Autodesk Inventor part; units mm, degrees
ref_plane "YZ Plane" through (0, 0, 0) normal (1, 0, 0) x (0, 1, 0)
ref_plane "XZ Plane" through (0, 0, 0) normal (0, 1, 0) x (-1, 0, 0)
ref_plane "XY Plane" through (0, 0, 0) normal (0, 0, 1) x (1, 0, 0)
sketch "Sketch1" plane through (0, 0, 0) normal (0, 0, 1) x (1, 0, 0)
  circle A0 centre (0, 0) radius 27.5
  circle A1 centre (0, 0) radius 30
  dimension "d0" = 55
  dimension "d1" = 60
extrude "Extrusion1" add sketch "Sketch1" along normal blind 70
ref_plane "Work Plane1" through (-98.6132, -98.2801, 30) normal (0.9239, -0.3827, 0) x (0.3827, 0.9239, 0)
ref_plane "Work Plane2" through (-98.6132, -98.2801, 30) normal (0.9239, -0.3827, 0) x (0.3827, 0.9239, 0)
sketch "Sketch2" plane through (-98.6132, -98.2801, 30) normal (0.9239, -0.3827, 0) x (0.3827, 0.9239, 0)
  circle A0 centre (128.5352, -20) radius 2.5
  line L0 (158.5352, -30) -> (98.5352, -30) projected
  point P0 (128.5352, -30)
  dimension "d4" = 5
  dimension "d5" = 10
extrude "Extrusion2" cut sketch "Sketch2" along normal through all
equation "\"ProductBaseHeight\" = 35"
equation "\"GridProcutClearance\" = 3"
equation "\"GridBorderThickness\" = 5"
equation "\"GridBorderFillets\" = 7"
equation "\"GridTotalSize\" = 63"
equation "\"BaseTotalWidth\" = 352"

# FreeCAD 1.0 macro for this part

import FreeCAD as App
import Part
import Sketcher
from FreeCAD import Vector

doc = App.newDocument("Part")
body = doc.addObject("PartDesign::Body", "Body")

# Sketch on XY plane
sketch1 = body.newObject("Sketcher::SketchObject", "Sketch")
sketch1.AttachmentSupport = (doc.getObject("XY_Plane"), [""])
sketch1.MapMode = "FlatFace"
sketch1.addGeometry([
    Part.Circle(Vector(0, 0, 0), Vector(0, 0, 1), 30),
    Part.Circle(Vector(0, 0, 0), Vector(0, 0, 1), 28),
], False)
sketch1.addConstraint([
    Sketcher.Constraint("Coincident", 0, 3, -1, 1),
    Sketcher.Constraint("Coincident", 1, 3, -1, 1),
    Sketcher.Constraint("Diameter", 0, 60.0),
    Sketcher.Constraint("Diameter", 1, 55.0),
])
pad1 = body.newObject("PartDesign::Pad", "Pad")
pad1.Profile = sketch1
pad1.Length = 70

# Sketch on an angled plane
sketch2 = body.newObject("Sketcher::SketchObject", "Sketch001")
sketch2.Placement = App.Placement(Vector(-98.6132, -98.2801, 30), App.Rotation(Vector(0.382683432, 0.923879533, 0), Vector(0, 0, 1.000000001), Vector(0.923879533, -0.382683432, 0), "ZXY"))
sketch2.addGeometry(Part.Circle(Vector(128.5, -20, 0), Vector(0, 0, 1), 2.5), False)
sketch2.addConstraint([
    Sketcher.Constraint("Diameter", 0, 5.0),
    Sketcher.Constraint("DistanceY", 0, 3, -1, 1, 20.0),
    Sketcher.Constraint("DistanceX", -1, 1, 0, 3, 128.5352),
])
pocket1 = body.newObject("PartDesign::Pocket", "Pocket")
pocket1.Profile = sketch2
pocket1.Type = "ThroughAll"
pocket1.Reversed = True

doc.recompute()
